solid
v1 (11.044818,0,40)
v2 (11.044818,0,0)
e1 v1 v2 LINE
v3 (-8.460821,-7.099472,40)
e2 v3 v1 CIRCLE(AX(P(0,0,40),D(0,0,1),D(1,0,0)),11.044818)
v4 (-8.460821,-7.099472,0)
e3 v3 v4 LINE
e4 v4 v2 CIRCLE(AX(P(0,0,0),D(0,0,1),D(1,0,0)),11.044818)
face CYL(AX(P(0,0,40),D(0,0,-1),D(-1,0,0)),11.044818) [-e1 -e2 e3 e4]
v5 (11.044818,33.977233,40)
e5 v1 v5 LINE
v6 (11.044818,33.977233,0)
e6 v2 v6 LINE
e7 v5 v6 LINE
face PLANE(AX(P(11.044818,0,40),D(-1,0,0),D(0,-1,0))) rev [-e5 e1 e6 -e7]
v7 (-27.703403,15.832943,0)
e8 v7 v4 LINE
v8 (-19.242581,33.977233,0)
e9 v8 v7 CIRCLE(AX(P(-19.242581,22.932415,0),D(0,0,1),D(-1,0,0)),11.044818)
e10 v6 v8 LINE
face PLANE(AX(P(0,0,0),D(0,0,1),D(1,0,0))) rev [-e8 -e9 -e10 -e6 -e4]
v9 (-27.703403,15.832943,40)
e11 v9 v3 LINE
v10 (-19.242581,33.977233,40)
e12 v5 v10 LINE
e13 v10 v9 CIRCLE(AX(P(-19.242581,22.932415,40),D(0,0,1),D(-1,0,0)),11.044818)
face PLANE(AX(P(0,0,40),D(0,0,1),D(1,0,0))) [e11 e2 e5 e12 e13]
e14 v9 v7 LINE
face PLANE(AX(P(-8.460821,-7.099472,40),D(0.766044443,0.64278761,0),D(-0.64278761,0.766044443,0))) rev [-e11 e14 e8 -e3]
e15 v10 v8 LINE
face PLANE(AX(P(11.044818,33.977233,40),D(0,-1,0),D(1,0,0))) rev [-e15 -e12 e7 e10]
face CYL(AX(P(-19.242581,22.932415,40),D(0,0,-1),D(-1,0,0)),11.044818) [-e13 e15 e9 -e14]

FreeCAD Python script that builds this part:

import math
import FreeCAD as App
import Part
import Sketcher
from FreeCAD import Vector
Q = App.Units.Quantity

doc = App.newDocument("Part")
body = doc.addObject("PartDesign::Body", "Body")

# Sketch on XY plane
sketch1 = body.newObject("Sketcher::SketchObject", "Sketch")
sketch1.AttachmentSupport = (doc.getObject("XY_Plane"), [""])
sketch1.MapMode = "FlatFace"
sketch1.addGeometry([
    Part.LineSegment(Vector(-28, 16, 0), Vector(-8, -7, 0)),  # 0
    Part.ArcOfCircle(Part.Circle(Vector(0, 0, 0), Vector(0, 0, 1), 11), math.radians(-140), math.radians(0)),  # 1
    Part.LineSegment(Vector(11, 0, 0), Vector(11, 34, 0)),  # 2
    Part.LineSegment(Vector(11, 34, 0), Vector(-19, 34, 0)),  # 3
    Part.ArcOfCircle(Part.Circle(Vector(-19, 23, 0), Vector(0, 0, 1), 11), math.radians(90), math.radians(220)),  # 4
], False)
sketch1.addConstraint([
    Sketcher.Constraint("Tangent", 0, 2, 1, 1),
    Sketcher.Constraint("Tangent", 1, 2, 2, 1),
    Sketcher.Constraint("Coincident", 2, 2, 3, 1),
    Sketcher.Constraint("Tangent", 3, 2, 4, 1),
    Sketcher.Constraint("Tangent", 4, 2, 0, 1),
    Sketcher.Constraint("Vertical", 2),
    Sketcher.Constraint("Horizontal", 3),
    Sketcher.Constraint("Coincident", 1, 3, -1, 1),
    Sketcher.Constraint("Equal", 1, 4),
    Sketcher.Constraint("Angle", 0, Q("-50 deg")),
    Sketcher.Constraint("Radius", 1, Q("11.044818 mm")),
    Sketcher.Constraint("DistanceX", 3, 2, 3, 1, Q("30.287399 mm")),
])
pad1 = body.newObject("PartDesign::Pad", "Pad")
pad1.Profile = sketch1
pad1.Length = 40

doc.recompute()
